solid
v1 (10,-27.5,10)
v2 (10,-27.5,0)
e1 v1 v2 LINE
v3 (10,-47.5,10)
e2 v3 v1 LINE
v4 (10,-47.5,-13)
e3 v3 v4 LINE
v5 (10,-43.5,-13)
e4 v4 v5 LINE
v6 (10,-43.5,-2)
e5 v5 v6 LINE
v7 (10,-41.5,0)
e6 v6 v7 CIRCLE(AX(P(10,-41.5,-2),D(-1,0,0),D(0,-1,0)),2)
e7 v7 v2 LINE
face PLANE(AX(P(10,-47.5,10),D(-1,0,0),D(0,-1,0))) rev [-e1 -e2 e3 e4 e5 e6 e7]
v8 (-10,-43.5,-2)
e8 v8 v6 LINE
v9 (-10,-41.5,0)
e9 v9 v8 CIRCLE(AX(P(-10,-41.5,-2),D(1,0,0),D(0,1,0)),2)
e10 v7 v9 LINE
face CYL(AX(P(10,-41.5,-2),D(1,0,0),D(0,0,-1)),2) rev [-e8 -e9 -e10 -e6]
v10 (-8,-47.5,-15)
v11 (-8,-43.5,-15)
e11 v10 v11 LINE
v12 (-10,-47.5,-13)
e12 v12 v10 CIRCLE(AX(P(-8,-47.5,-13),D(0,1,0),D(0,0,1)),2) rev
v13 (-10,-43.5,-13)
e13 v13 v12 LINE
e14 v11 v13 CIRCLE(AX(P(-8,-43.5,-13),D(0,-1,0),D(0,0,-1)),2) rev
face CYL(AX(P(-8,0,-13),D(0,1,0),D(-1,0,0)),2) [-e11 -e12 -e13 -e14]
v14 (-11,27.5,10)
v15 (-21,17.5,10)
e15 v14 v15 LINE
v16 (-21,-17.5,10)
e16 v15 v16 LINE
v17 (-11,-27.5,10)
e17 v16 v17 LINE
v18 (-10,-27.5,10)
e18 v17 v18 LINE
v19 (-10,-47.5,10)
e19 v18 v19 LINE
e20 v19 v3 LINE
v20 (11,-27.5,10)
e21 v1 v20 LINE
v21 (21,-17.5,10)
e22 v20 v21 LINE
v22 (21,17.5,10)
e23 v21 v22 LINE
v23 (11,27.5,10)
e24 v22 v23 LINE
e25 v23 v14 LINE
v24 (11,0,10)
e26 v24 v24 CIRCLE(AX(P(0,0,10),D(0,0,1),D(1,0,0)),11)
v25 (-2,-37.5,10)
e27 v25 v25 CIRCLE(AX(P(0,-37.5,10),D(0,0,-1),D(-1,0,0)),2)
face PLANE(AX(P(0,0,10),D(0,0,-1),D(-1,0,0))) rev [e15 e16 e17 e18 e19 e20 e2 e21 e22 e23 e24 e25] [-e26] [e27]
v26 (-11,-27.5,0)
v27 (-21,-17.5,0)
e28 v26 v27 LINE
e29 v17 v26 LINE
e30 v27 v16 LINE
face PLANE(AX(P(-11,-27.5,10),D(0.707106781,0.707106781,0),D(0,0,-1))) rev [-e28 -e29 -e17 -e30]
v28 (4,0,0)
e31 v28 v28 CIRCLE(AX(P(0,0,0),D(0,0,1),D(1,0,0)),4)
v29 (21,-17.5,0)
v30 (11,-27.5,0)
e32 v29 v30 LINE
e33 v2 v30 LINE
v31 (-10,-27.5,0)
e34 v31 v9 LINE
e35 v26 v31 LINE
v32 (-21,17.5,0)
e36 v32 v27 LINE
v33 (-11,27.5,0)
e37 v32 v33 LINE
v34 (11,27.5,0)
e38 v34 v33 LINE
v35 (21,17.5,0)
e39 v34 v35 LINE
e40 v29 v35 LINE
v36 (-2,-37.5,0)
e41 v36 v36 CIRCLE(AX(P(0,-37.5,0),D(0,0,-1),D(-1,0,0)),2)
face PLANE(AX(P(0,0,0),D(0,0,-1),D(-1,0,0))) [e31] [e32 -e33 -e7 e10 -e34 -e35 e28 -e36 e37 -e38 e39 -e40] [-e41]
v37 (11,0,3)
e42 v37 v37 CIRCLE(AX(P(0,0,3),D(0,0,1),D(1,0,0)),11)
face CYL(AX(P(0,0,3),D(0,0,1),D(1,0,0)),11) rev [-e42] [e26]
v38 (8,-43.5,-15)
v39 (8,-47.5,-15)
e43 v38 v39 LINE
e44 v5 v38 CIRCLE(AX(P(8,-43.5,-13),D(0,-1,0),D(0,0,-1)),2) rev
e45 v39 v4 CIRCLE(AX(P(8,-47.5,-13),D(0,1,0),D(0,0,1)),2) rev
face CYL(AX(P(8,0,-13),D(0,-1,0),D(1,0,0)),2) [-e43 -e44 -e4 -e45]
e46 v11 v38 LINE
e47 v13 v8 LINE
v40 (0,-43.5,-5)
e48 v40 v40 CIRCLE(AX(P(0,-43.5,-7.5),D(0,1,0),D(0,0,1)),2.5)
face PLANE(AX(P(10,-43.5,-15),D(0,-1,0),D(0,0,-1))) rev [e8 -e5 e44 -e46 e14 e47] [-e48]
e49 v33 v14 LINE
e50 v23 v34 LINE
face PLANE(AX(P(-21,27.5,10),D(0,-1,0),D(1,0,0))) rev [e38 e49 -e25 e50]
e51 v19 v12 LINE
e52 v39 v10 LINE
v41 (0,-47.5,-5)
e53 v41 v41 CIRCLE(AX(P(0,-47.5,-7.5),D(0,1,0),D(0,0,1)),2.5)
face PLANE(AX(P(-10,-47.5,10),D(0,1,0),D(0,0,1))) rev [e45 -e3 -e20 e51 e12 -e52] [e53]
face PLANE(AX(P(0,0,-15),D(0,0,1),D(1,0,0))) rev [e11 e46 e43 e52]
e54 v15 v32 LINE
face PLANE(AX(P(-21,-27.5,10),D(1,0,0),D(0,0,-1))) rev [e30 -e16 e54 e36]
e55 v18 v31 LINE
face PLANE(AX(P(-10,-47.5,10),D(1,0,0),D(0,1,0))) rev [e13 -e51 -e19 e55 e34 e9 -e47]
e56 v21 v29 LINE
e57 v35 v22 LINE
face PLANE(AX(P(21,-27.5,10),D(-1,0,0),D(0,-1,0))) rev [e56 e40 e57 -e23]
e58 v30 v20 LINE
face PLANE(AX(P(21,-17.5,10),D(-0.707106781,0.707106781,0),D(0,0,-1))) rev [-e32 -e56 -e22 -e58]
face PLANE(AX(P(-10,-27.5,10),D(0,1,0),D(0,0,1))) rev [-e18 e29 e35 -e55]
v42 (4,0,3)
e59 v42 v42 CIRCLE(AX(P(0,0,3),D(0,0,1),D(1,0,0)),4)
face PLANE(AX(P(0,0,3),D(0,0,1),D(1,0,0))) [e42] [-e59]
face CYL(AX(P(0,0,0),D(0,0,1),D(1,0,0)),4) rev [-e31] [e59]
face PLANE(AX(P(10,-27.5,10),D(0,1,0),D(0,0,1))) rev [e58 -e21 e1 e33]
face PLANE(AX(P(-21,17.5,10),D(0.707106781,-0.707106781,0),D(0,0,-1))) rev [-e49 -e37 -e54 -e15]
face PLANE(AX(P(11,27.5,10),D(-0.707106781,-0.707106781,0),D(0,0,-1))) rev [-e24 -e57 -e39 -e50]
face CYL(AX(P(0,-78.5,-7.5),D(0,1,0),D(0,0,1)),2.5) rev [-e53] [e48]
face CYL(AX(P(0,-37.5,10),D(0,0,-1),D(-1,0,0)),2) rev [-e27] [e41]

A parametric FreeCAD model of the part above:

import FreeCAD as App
import Part
import Sketcher

V = App.Vector
Q = App.Units.Quantity


def edges_at(feature, points):
    """Names of the edges that pass closest to the given points."""
    edges = feature.Shape.Edges
    near = lambda p: min(range(len(edges)), key=lambda i: edges[i].distToShape(Part.Vertex(*p))[0])
    return sorted({f"Edge{near(p) + 1}" for p in points})

doc = App.newDocument("Part")
params = doc.addObject("Spreadsheet::Sheet", "Params")
for row, (alias, value) in enumerate([
    ("sketch1_width", "20 mm"),
    ("sketch1_width2", "11 mm"),
    ("sketch1_height", "55 mm"),
    ("pad1_length", "10 mm"),
    ("sketch2_diameter", "22 mm"),
    ("pocket1_length", "7 mm"),
    ("sketch3_diameter", "8 mm"),
    ("chamfer_size", "10 mm"),
    ("sketch4_width", "20 mm"),
    ("sketch4_height", "4 mm"),
    ("pad2_length", "15 mm"),
    ("sketch5_diameter", "5 mm"),
    ("pocket3_length", "35 mm"),
    ("fillet_radius", "2 mm"),
    ("sketch6_diameter", "4 mm"),
    ("pocket4_length", "10 mm"),
], start=1):
    params.set(f"A{row}", alias)
    params.set(f"B{row}", "=" + value)
    params.setAlias(f"B{row}", alias)

body = doc.addObject("PartDesign::Body", "Body")

# Sketch on XY plane
sketch1 = body.newObject("Sketcher::SketchObject", "Sketch")
sketch1.AttachmentSupport = (doc.getObject("XY_Plane"), [""])
sketch1.MapMode = "FlatFace"
sketch1.addGeometry([
    Part.LineSegment(V(-10, -48, 0), V(10, -48, 0)),  # 0
    Part.LineSegment(V(10, -48, 0), V(10, -28, 0)),  # 1
    Part.LineSegment(V(10, -28, 0), V(21, -28, 0)),  # 2
    Part.LineSegment(V(21, -28, 0), V(21, 28, 0)),  # 3
    Part.LineSegment(V(21, 28, 0), V(-21, 28, 0)),  # 4
    Part.LineSegment(V(-21, 28, 0), V(-21, -28, 0)),  # 5
    Part.LineSegment(V(-21, -28, 0), V(-10, -28, 0)),  # 6
    Part.LineSegment(V(-10, -28, 0), V(-10, -48, 0)),  # 7
], False)
sketch1.addConstraint([
    Sketcher.Constraint("Coincident", 0, 2, 1, 1),
    Sketcher.Constraint("Coincident", 1, 2, 2, 1),
    Sketcher.Constraint("Coincident", 2, 2, 3, 1),
    Sketcher.Constraint("Coincident", 3, 2, 4, 1),
    Sketcher.Constraint("Coincident", 4, 2, 5, 1),
    Sketcher.Constraint("Coincident", 5, 2, 6, 1),
    Sketcher.Constraint("Coincident", 6, 2, 7, 1),
    Sketcher.Constraint("Coincident", 7, 2, 0, 1),
    Sketcher.Constraint("Horizontal", 0),
    Sketcher.Constraint("Vertical", 1),
    Sketcher.Constraint("Horizontal", 2),
    Sketcher.Constraint("Vertical", 3),
    Sketcher.Constraint("Horizontal", 4),
    Sketcher.Constraint("Vertical", 5),
    Sketcher.Constraint("Horizontal", 6),
    Sketcher.Constraint("Vertical", 7),
    Sketcher.Constraint("Symmetric", 2, 2, 4, 2, -1, 1),
    Sketcher.Constraint("Symmetric", 1, 2, 6, 2, -2),
    Sketcher.Constraint("Equal", 0, 1),
    Sketcher.Constraint("DistanceX", 0, 1, 0, 2, Q("20 mm")),
    Sketcher.Constraint("DistanceX", 2, 1, 2, 2, Q("11 mm")),
    Sketcher.Constraint("DistanceY", 3, 1, 3, 2, Q("55 mm")),
])
sketch1.setExpression("Constraints[19]", "Params.sketch1_width")
sketch1.setExpression("Constraints[20]", "Params.sketch1_width2")
sketch1.setExpression("Constraints[21]", "Params.sketch1_height")
pad1 = body.newObject("PartDesign::Pad", "Pad")
pad1.Profile = sketch1
pad1.setExpression("Length", "Params.pad1_length")

# Sketch on XY plane
sketch2 = body.newObject("Sketcher::SketchObject", "Sketch001")
sketch2.AttachmentSupport = (doc.getObject("XY_Plane"), [""])
sketch2.MapMode = "FlatFace"
sketch2.AttachmentOffset = App.Placement(V(0, 0, 10), App.Rotation())
sketch2.addGeometry(Part.Circle(V(0, 0, 0), V(0, 0, 1), 11), False)
sketch2.addConstraint([
    Sketcher.Constraint("Coincident", 0, 3, -1, 1),
    Sketcher.Constraint("Diameter", 0, Q("22 mm")),
])
sketch2.setExpression("Constraints[1]", "Params.sketch2_diameter")
pocket1 = body.newObject("PartDesign::Pocket", "Pocket")
pocket1.Profile = sketch2
pocket1.setExpression("Length", "Params.pocket1_length")

# Sketch on XY plane
sketch3 = body.newObject("Sketcher::SketchObject", "Sketch002")
sketch3.AttachmentSupport = (doc.getObject("XY_Plane"), [""])
sketch3.MapMode = "FlatFace"
sketch3.AttachmentOffset = App.Placement(V(0, 0, 3), App.Rotation())
sketch3.addGeometry(Part.Circle(V(0, 0, 0), V(0, 0, 1), 4), False)
sketch3.addConstraint([
    Sketcher.Constraint("Coincident", 0, 3, -1, 1),
    Sketcher.Constraint("Diameter", 0, Q("8 mm")),
])
sketch3.setExpression("Constraints[1]", "Params.sketch3_diameter")
pocket2 = body.newObject("PartDesign::Pocket", "Pocket001")
pocket2.Profile = sketch3
pocket2.Type = "ThroughAll"
doc.recompute()

chamfer = body.newObject("PartDesign::Chamfer", "Chamfer")
chamfer.Base = (pocket2, edges_at(pocket2, [
    (21, -27.5, 5),
    (-21, -27.5, 5),
    (-21, 27.5, 5),
    (21, 27.5, 5),
]))
chamfer.setExpression("Size", "Params.chamfer_size")

# Sketch on XY plane
sketch4 = body.newObject("Sketcher::SketchObject", "Sketch003")
sketch4.AttachmentSupport = (doc.getObject("XY_Plane"), [""])
sketch4.MapMode = "FlatFace"
sketch4.addGeometry([
    Part.LineSegment(V(10, -43.5, 0), V(10, -47.5, 0)),
    Part.LineSegment(V(10, -47.5, 0), V(-10, -47.5, 0)),
    Part.LineSegment(V(-10, -47.5, 0), V(-10, -43.5, 0)),
    Part.LineSegment(V(-10, -43.5, 0), V(10, -43.5, 0)),
], False)
sketch4.addConstraint([
    Sketcher.Constraint("Coincident", 0, 2, 1, 1),
    Sketcher.Constraint("Coincident", 1, 2, 2, 1),
    Sketcher.Constraint("Coincident", 2, 2, 3, 1),
    Sketcher.Constraint("Coincident", 3, 2, 0, 1),
    Sketcher.Constraint("Vertical", 0),
    Sketcher.Constraint("Horizontal", 1),
    Sketcher.Constraint("Vertical", 2),
    Sketcher.Constraint("Horizontal", 3),
    Sketcher.Constraint("DistanceX", 1, 2, 1, 1, Q("20 mm")),
    Sketcher.Constraint("DistanceY", 0, 2, 0, 1, Q("4 mm")),
    Sketcher.Constraint("DistanceX", -1, 1, 0, 2, Q("10 mm")),
    Sketcher.Constraint("DistanceY", 0, 2, -1, 1, Q("47.5 mm")),
])
sketch4.setExpression("Constraints[8]", "Params.sketch4_width")
sketch4.setExpression("Constraints[9]", "Params.sketch4_height")
pad2 = body.newObject("PartDesign::Pad", "Pad001")
pad2.Profile = sketch4
pad2.setExpression("Length", "Params.pad2_length")
pad2.Reversed = True

# Sketch on XZ plane
sketch5 = body.newObject("Sketcher::SketchObject", "Sketch004")
sketch5.AttachmentSupport = (doc.getObject("XZ_Plane"), [""])
sketch5.MapMode = "FlatFace"
sketch5.AttachmentOffset = App.Placement(V(0, 0, 43.5), App.Rotation())
sketch5.addGeometry(Part.Circle(V(0, -7.5, 0), V(0, 0, 1), 2.5), False)
sketch5.addConstraint([
    Sketcher.Constraint("PointOnObject", 0, 3, -2),
    Sketcher.Constraint("Diameter", 0, Q("5 mm")),
    Sketcher.Constraint("DistanceY", 0, 3, -1, 1, Q("7.5 mm")),
])
sketch5.setExpression("Constraints[1]", "Params.sketch5_diameter")
pocket3 = body.newObject("PartDesign::Pocket", "Pocket002")
pocket3.Profile = sketch5
pocket3.setExpression("Length", "Params.pocket3_length")
pocket3.Reversed = True
doc.recompute()

fillet = body.newObject("PartDesign::Fillet", "Fillet")
fillet.Base = (pocket3, edges_at(pocket3, [(0, -43.5, 0), (10, -45.5, -15), (-10, -45.5, -15)]))
fillet.setExpression("Radius", "Params.fillet_radius")

# Sketch on XY plane
sketch6 = body.newObject("Sketcher::SketchObject", "Sketch005")
sketch6.AttachmentSupport = (doc.getObject("XY_Plane"), [""])
sketch6.MapMode = "FlatFace"
sketch6.addGeometry(Part.Circle(V(0, -37.5, 0), V(0, 0, 1), 2), False)
sketch6.addConstraint([
    Sketcher.Constraint("PointOnObject", 0, 3, -2),
    Sketcher.Constraint("Diameter", 0, Q("4 mm")),
    Sketcher.Constraint("DistanceY", 0, 3, -1, 1, Q("37.5 mm")),
])
sketch6.setExpression("Constraints[1]", "Params.sketch6_diameter")
pocket4 = body.newObject("PartDesign::Pocket", "Pocket003")
pocket4.Profile = sketch6
pocket4.setExpression("Length", "Params.pocket4_length")
pocket4.Reversed = True

doc.recompute()
